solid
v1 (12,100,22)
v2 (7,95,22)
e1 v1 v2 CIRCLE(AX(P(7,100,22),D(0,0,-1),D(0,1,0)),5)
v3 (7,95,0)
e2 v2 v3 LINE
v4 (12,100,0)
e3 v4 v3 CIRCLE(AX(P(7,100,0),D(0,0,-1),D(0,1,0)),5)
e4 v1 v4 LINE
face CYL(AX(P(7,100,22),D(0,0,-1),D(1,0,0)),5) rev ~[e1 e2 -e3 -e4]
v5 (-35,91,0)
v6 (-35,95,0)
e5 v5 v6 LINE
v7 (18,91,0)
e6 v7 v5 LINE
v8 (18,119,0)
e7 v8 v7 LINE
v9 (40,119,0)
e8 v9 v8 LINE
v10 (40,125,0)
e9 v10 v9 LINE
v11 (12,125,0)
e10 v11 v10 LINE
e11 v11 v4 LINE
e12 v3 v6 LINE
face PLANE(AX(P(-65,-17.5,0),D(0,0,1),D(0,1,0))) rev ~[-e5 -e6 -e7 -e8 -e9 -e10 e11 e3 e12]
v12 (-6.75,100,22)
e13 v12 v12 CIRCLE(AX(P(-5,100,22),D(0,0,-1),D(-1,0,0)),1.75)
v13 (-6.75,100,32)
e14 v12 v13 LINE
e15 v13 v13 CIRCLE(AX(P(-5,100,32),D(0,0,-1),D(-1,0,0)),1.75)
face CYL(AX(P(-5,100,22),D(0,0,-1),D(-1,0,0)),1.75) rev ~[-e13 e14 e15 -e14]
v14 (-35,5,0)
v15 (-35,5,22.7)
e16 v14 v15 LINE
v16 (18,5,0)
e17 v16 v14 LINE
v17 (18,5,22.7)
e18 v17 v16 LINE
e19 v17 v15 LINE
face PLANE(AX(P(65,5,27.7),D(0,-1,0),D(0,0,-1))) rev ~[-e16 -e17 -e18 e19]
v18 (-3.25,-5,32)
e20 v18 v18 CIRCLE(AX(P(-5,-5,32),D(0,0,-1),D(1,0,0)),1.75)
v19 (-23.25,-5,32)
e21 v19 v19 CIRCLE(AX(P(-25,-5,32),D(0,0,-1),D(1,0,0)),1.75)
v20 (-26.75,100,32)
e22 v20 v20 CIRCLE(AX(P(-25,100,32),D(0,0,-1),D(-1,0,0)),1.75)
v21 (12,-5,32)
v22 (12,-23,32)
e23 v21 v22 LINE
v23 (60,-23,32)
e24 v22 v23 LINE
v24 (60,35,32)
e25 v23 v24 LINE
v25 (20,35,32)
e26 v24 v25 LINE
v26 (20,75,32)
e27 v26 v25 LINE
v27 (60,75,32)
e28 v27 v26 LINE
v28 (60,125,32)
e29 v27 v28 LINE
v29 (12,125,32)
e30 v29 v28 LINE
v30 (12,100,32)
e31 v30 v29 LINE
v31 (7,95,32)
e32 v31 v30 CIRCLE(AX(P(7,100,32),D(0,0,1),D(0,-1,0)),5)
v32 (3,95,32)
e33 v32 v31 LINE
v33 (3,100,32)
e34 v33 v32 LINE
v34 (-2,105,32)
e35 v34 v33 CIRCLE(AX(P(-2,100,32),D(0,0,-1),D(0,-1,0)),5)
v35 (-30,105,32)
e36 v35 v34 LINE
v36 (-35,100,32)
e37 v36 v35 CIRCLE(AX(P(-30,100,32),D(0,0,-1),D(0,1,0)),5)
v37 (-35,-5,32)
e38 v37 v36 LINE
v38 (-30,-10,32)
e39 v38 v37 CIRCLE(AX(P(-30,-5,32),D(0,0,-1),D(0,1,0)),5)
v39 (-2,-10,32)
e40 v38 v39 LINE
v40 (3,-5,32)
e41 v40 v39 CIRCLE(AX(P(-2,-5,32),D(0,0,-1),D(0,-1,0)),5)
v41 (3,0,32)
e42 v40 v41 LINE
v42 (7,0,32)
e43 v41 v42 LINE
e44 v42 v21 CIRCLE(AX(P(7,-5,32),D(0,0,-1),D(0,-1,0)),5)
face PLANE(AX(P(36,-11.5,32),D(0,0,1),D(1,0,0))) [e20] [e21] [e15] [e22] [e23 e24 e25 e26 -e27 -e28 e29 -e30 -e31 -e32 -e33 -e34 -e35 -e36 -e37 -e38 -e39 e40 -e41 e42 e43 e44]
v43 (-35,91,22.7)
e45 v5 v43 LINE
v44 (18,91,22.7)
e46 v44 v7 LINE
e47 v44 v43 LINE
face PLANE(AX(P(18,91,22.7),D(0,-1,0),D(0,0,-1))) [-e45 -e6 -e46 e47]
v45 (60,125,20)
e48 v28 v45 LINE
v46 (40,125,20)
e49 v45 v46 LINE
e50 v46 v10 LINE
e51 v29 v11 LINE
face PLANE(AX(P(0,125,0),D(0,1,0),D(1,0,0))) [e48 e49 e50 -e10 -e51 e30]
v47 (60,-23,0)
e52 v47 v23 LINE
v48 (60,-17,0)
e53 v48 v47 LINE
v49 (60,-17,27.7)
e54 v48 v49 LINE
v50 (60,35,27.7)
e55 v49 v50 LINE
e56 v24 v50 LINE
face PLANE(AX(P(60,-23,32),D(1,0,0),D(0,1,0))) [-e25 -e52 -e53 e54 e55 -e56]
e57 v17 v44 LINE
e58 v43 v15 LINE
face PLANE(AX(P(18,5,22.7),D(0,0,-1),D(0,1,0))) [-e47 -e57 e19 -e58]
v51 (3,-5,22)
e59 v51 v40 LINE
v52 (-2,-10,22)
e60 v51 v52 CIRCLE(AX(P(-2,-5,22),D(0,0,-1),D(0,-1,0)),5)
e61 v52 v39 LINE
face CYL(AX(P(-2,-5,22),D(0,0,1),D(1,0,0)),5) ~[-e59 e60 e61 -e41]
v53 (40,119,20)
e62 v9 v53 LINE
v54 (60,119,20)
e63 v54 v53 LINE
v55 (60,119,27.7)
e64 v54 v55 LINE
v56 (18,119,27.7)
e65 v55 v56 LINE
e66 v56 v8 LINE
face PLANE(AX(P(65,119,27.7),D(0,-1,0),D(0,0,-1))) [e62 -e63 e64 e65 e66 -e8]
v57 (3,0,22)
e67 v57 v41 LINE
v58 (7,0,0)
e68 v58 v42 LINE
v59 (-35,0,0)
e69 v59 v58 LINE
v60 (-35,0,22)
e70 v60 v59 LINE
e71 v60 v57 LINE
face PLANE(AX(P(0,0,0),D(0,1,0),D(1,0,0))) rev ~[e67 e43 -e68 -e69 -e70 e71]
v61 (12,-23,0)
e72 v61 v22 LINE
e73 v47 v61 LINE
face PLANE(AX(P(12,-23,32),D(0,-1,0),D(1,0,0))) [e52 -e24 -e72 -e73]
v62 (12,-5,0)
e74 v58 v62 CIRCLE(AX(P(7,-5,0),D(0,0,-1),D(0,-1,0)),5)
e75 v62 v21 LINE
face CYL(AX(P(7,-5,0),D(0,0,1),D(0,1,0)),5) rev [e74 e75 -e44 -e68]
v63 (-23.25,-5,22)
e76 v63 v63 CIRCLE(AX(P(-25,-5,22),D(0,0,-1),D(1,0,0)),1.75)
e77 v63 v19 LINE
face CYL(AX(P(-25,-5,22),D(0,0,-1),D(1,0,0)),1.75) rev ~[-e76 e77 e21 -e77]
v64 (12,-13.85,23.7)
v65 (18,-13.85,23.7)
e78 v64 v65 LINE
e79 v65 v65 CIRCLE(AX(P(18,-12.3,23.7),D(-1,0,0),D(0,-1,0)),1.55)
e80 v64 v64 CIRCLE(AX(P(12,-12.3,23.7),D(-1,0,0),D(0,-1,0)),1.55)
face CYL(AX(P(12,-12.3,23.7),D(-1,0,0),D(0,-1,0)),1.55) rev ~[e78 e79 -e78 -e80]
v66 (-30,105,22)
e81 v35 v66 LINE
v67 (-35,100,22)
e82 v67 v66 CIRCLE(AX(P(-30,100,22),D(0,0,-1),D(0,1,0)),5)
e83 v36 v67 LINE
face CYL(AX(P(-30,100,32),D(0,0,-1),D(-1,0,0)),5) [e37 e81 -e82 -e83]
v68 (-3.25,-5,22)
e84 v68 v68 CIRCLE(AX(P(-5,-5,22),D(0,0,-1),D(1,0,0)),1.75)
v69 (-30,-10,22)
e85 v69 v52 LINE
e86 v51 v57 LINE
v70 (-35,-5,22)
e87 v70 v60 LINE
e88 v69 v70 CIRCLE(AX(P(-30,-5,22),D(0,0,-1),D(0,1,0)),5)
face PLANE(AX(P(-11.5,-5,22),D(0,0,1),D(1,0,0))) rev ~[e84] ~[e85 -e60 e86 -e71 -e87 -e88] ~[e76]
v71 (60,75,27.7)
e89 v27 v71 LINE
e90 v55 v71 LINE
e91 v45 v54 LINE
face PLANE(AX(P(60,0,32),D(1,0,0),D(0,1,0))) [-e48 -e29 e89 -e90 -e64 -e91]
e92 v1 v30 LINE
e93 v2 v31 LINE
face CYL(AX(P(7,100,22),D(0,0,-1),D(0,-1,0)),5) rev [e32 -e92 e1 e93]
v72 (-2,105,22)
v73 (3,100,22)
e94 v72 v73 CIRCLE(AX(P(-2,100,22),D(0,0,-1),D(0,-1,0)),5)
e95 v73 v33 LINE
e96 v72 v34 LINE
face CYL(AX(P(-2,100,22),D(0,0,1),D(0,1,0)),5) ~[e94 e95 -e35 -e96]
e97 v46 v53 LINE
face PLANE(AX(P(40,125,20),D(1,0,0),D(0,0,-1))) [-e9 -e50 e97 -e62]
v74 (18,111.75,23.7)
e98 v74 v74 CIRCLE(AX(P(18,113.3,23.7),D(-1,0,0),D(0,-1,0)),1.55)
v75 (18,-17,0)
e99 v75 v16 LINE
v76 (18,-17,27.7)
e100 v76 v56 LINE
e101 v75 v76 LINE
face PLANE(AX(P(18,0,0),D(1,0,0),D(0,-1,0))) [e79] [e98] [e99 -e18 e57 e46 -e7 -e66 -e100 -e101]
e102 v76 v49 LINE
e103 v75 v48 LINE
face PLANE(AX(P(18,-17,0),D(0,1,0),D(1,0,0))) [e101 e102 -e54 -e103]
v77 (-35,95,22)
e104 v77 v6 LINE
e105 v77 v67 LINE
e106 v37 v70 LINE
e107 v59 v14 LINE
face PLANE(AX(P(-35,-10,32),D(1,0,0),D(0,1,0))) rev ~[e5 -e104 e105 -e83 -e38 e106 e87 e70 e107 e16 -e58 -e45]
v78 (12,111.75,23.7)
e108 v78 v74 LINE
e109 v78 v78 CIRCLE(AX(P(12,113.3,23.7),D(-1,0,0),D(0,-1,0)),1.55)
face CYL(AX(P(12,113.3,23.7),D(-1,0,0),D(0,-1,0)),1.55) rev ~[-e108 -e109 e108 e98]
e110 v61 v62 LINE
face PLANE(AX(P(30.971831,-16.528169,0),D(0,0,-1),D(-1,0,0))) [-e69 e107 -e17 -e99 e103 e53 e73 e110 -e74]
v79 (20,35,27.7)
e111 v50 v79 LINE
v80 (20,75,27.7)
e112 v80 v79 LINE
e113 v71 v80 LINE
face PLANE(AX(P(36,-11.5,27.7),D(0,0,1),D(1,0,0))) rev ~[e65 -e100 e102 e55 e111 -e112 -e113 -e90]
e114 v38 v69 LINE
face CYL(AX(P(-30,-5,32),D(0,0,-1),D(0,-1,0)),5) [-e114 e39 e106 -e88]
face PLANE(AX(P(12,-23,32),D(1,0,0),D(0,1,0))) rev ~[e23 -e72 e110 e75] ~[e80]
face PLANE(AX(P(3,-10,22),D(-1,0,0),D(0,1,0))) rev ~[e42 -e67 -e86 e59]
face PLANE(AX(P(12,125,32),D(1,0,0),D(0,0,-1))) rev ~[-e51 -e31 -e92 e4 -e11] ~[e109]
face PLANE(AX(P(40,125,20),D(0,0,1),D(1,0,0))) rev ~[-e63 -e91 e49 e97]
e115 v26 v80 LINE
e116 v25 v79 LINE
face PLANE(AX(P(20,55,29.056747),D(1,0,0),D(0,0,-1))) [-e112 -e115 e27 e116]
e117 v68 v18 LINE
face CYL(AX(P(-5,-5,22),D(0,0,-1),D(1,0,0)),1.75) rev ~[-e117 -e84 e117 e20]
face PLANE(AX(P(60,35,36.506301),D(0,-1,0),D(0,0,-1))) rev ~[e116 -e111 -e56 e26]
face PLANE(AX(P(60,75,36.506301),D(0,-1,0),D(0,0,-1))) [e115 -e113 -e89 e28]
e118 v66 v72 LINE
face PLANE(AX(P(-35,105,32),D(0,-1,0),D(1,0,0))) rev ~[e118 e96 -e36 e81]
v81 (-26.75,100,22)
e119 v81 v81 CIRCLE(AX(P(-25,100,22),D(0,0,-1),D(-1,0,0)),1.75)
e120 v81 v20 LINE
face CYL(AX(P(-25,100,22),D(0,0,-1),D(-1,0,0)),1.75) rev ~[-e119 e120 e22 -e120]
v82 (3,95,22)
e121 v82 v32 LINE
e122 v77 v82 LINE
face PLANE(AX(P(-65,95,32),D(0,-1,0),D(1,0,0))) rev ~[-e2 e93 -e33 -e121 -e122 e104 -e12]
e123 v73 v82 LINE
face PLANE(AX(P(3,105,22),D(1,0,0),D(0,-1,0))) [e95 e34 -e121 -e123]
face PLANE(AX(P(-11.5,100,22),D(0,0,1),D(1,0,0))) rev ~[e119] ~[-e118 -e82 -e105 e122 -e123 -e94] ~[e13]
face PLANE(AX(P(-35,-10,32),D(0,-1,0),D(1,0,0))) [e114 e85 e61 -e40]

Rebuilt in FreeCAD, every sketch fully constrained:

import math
import FreeCAD as App
import Part
import Sketcher
from FreeCAD import Vector
Q = App.Units.Quantity


def edges_at(feature, points):
    """Names of the edges that pass closest to the given points."""
    edges = feature.Shape.Edges
    near = lambda p: min(range(len(edges)), key=lambda i: edges[i].distToShape(Part.Vertex(*p))[0])
    return sorted({f"Edge{near(p) + 1}" for p in points})

doc = App.newDocument("Part")
params = doc.addObject("Spreadsheet::Sheet", "Params")
for row, (alias, value) in enumerate([
    ("sketch1_width", "130 mm"),
    ("sketch1_height", "64 mm"),
    ("pad1_length", "125 mm"),
    ("sketch2_width", "114 mm"),
    ("sketch2_height", "55.4 mm"),
    ("pocket1_length", "47 mm"),
    ("sketch3_width", "86 mm"),
    ("sketch3_height", "45.4 mm"),
    ("pocket2_length", "78 mm"),
    ("sketch4_width", "40 mm"),
    ("pocket3_length", "40 mm"),
    ("sketch5_width", "25 mm"),
    ("sketch5_height", "4.3 mm"),
    ("pocket4_length", "25 mm"),
    ("sketch6_width", "10 mm"),
    ("sketch6_height", "40 mm"),
    ("pocket5_length", "35 mm"),
    ("sketch7_width", "5 mm"),
    ("sketch7_height", "125 mm"),
    ("sketch8_width", "20 mm"),
    ("sketch8_height", "150 mm"),
    ("pad2_length", "5 mm"),
    ("sketch9_diameter", "5 mm"),
    ("fillet_radius", "3 mm"),
    ("sketch10_width", "32 mm"),
    ("sketch10_height", "30 mm"),
    ("sketch11_width", "45 mm"),
    ("sketch11_height", "50 mm"),
    ("pocket9_length", "30 mm"),
    ("fillet2_radius", "5 mm"),
    ("sketch12_width", "150 mm"),
    ("sketch12_height", "32 mm"),
    ("sketch13_width", "40 mm"),
    ("pocket11_length", "40 mm"),
    ("sketch14_width", "30 mm"),
    ("sketch14_height", "95 mm"),
    ("sketch15_width", "6 mm"),
    ("sketch15_height", "20 mm"),
    ("sketch16_width", "47 mm"),
    ("sketch16_height", "10 mm"),
    ("pad3_length", "10 mm"),
    ("sketch17_diameter", "3.5 mm"),
    ("sketch18_width", "42 mm"),
    ("sketch18_height", "27.7 mm"),
    ("sketch19_width", "42 mm"),
    ("sketch19_width2", "48 mm"),
    ("sketch19_height", "17 mm"),
    ("pad4_length", "27.7 mm"),
    ("sketch20_width", "48 mm"),
    ("sketch20_height", "23 mm"),
    ("pad5_length", "4.3 mm"),
    ("fillet3_radius", "5 mm"),
    ("fillet4_radius", "5 mm"),
    ("sketch21_radius", "5 mm"),
    ("sketch21_width", "4 mm"),
    ("sketch21_height", "10 mm"),
    ("pocket16_length", "10 mm"),
    ("sketch22_diameter", "3.1 mm"),
    ("fillet5_radius", "5 mm"),
    ("fillet6_radius", "5 mm"),
    ("fillet7_radius", "5 mm"),
], start=1):
    params.set(f"A{row}", alias)
    params.set(f"B{row}", "=" + value)
    params.setAlias(f"B{row}", alias)

body = doc.addObject("PartDesign::Body", "Body")

# Sketch on XZ plane
sketch1 = body.newObject("Sketcher::SketchObject", "Sketch")
sketch1.AttachmentSupport = (doc.getObject("XZ_Plane"), [""])
sketch1.MapMode = "FlatFace"
sketch1.addGeometry([
    Part.LineSegment(Vector(-65, -32, 0), Vector(-65, 32, 0)),
    Part.LineSegment(Vector(-65, 32, 0), Vector(65, 32, 0)),
    Part.LineSegment(Vector(65, 32, 0), Vector(65, -32, 0)),
    Part.LineSegment(Vector(65, -32, 0), Vector(-65, -32, 0)),
], False)
sketch1.addConstraint([
    Sketcher.Constraint("Coincident", 0, 2, 1, 1),
    Sketcher.Constraint("Coincident", 1, 2, 2, 1),
    Sketcher.Constraint("Coincident", 2, 2, 3, 1),
    Sketcher.Constraint("Coincident", 3, 2, 0, 1),
    Sketcher.Constraint("Vertical", 0),
    Sketcher.Constraint("Horizontal", 1),
    Sketcher.Constraint("Vertical", 2),
    Sketcher.Constraint("Horizontal", 3),
    Sketcher.Constraint("Symmetric", 0, 2, 2, 2, -1, 1),
    Sketcher.Constraint("DistanceX", 1, 1, 1, 2, Q("130 mm")),
    Sketcher.Constraint("DistanceY", 0, 1, 0, 2, Q("64 mm")),
])
sketch1.setExpression("Constraints[9]", "Params.sketch1_width")
sketch1.setExpression("Constraints[10]", "Params.sketch1_height")
pad1 = body.newObject("PartDesign::Pad", "Pad")
pad1.Profile = sketch1
pad1.setExpression("Length", "Params.pad1_length")
pad1.Reversed = True

# Sketch on YZ plane
sketch2 = body.newObject("Sketcher::SketchObject", "Sketch001")
sketch2.AttachmentSupport = (doc.getObject("YZ_Plane"), [""])
sketch2.MapMode = "FlatFace"
sketch2.AttachmentOffset = App.Placement(Vector(0, 0, 65), App.Rotation())
sketch2.addGeometry([
    Part.LineSegment(Vector(119, 27.7, 0), Vector(5, 27.7, 0)),
    Part.LineSegment(Vector(5, 27.7, 0), Vector(5, -27.7, 0)),
    Part.LineSegment(Vector(5, -27.7, 0), Vector(119, -27.7, 0)),
    Part.LineSegment(Vector(119, -27.7, 0), Vector(119, 27.7, 0)),
], False)
sketch2.addConstraint([
    Sketcher.Constraint("Coincident", 0, 2, 1, 1),
    Sketcher.Constraint("Coincident", 1, 2, 2, 1),
    Sketcher.Constraint("Coincident", 2, 2, 3, 1),
    Sketcher.Constraint("Coincident", 3, 2, 0, 1),
    Sketcher.Constraint("Horizontal", 0),
    Sketcher.Constraint("Vertical", 1),
    Sketcher.Constraint("Horizontal", 2),
    Sketcher.Constraint("Vertical", 3),
    Sketcher.Constraint("DistanceX", 0, 2, 0, 1, Q("114 mm")),
    Sketcher.Constraint("DistanceY", 1, 2, 1, 1, Q("55.4 mm")),
    Sketcher.Constraint("DistanceX", -1, 1, 0, 2, Q("5 mm")),
    Sketcher.Constraint("DistanceY", -1, 1, 0, 2, Q("27.7 mm")),
])
sketch2.setExpression("Constraints[8]", "Params.sketch2_width")
sketch2.setExpression("Constraints[9]", "Params.sketch2_height")
pocket1 = body.newObject("PartDesign::Pocket", "Pocket")
pocket1.Profile = sketch2
pocket1.setExpression("Length", "Params.pocket1_length")

# Sketch on YZ plane
sketch3 = body.newObject("Sketcher::SketchObject", "Sketch002")
sketch3.AttachmentSupport = (doc.getObject("YZ_Plane"), [""])
sketch3.MapMode = "FlatFace"
sketch3.AttachmentOffset = App.Placement(Vector(0, 0, 18), App.Rotation())
sketch3.addGeometry([
    Part.LineSegment(Vector(91, 22.7, 0), Vector(5, 22.7, 0)),
    Part.LineSegment(Vector(5, 22.7, 0), Vector(5, -22.7, 0)),
    Part.LineSegment(Vector(5, -22.7, 0), Vector(91, -22.7, 0)),
    Part.LineSegment(Vector(91, -22.7, 0), Vector(91, 22.7, 0)),
], False)
sketch3.addConstraint([
    Sketcher.Constraint("Coincident", 0, 2, 1, 1),
    Sketcher.Constraint("Coincident", 1, 2, 2, 1),
    Sketcher.Constraint("Coincident", 2, 2, 3, 1),
    Sketcher.Constraint("Coincident", 3, 2, 0, 1),
    Sketcher.Constraint("Horizontal", 0),
    Sketcher.Constraint("Vertical", 1),
    Sketcher.Constraint("Horizontal", 2),
    Sketcher.Constraint("Vertical", 3),
    Sketcher.Constraint("DistanceX", 0, 2, 0, 1, Q("86 mm")),
    Sketcher.Constraint("DistanceY", 1, 2, 1, 1, Q("45.4 mm")),
    Sketcher.Constraint("DistanceX", -1, 1, 0, 2, Q("5 mm")),
    Sketcher.Constraint("DistanceY", -1, 1, 0, 2, Q("22.7 mm")),
])
sketch3.setExpression("Constraints[8]", "Params.sketch3_width")
sketch3.setExpression("Constraints[9]", "Params.sketch3_height")
pocket2 = body.newObject("PartDesign::Pocket", "Pocket001")
pocket2.Profile = sketch3
pocket2.setExpression("Length", "Params.pocket2_length")

# Sketch on YZ plane
sketch4 = body.newObject("Sketcher::SketchObject", "Sketch003")
sketch4.AttachmentSupport = (doc.getObject("YZ_Plane"), [""])
sketch4.MapMode = "FlatFace"
sketch4.AttachmentOffset = App.Placement(Vector(0, 0, 65), App.Rotation())
sketch4.addGeometry([
    Part.LineSegment(Vector(75, -14.549865, 0), Vector(35, -14.549865, 0)),
    Part.LineSegment(Vector(35, -14.549865, 0), Vector(35, -38.588773, 0)),
    Part.LineSegment(Vector(35, -38.588773, 0), Vector(75, -38.588773, 0)),
    Part.LineSegment(Vector(75, -38.588773, 0), Vector(75, -14.549865, 0)),
], False)
sketch4.addConstraint([
    Sketcher.Constraint("Coincident", 0, 2, 1, 1),
    Sketcher.Constraint("Coincident", 1, 2, 2, 1),
    Sketcher.Constraint("Coincident", 2, 2, 3, 1),
    Sketcher.Constraint("Coincident", 3, 2, 0, 1),
    Sketcher.Constraint("Horizontal", 0),
    Sketcher.Constraint("Vertical", 1),
    Sketcher.Constraint("Horizontal", 2),
    Sketcher.Constraint("Vertical", 3),
    Sketcher.Constraint("DistanceX", 0, 2, 0, 1, Q("40 mm")),
    Sketcher.Constraint("DistanceX", -1, 1, 0, 2, Q("35 mm")),
    Sketcher.Constraint("DistanceY", 1, 2, 1, 1, Q("24.038908 mm")),
    Sketcher.Constraint("DistanceY", 0, 2, -1, 1, Q("14.549865 mm")),
])
sketch4.setExpression("Constraints[8]", "Params.sketch4_width")
pocket3 = body.newObject("PartDesign::Pocket", "Pocket002")
pocket3.Profile = sketch4
pocket3.setExpression("Length", "Params.pocket3_length")

# Sketch on YZ plane
sketch5 = body.newObject("Sketcher::SketchObject", "Sketch004")
sketch5.AttachmentSupport = (doc.getObject("YZ_Plane"), [""])
sketch5.MapMode = "FlatFace"
sketch5.AttachmentOffset = App.Placement(Vector(0, 0, 65), App.Rotation())
sketch5.addGeometry([
    Part.LineSegment(Vector(100, -27.7, 0), Vector(75, -27.7, 0)),
    Part.LineSegment(Vector(75, -27.7, 0), Vector(75, -32, 0)),
    Part.LineSegment(Vector(75, -32, 0), Vector(100, -32, 0)),
    Part.LineSegment(Vector(100, -32, 0), Vector(100, -27.7, 0)),
], False)
sketch5.addConstraint([
    Sketcher.Constraint("Coincident", 0, 2, 1, 1),
    Sketcher.Constraint("Coincident", 1, 2, 2, 1),
    Sketcher.Constraint("Coincident", 2, 2, 3, 1),
    Sketcher.Constraint("Coincident", 3, 2, 0, 1),
    Sketcher.Constraint("Horizontal", 0),
    Sketcher.Constraint("Vertical", 1),
    Sketcher.Constraint("Horizontal", 2),
    Sketcher.Constraint("Vertical", 3),
    Sketcher.Constraint("DistanceX", 0, 2, 0, 1, Q("25 mm")),
    Sketcher.Constraint("DistanceY", 1, 2, 1, 1, Q("4.3 mm")),
    Sketcher.Constraint("DistanceX", -1, 1, 0, 2, Q("75 mm")),
    Sketcher.Constraint("DistanceY", 1, 2, -1, 1, Q("32 mm")),
])
sketch5.setExpression("Constraints[8]", "Params.sketch5_width")
sketch5.setExpression("Constraints[9]", "Params.sketch5_height")
pocket4 = body.newObject("PartDesign::Pocket", "Pocket003")
pocket4.Profile = sketch5
pocket4.setExpression("Length", "Params.pocket4_length")

# Sketch on XZ plane
sketch6 = body.newObject("Sketcher::SketchObject", "Sketch005")
sketch6.AttachmentSupport = (doc.getObject("XZ_Plane"), [""])
sketch6.MapMode = "FlatFace"
sketch6.AttachmentOffset = App.Placement(Vector(0, 0, -125), App.Rotation())
sketch6.addGeometry([
    Part.LineSegment(Vector(40, -20, 0), Vector(40, 20, 0)),
    Part.LineSegment(Vector(40, 20, 0), Vector(50, 20, 0)),
    Part.LineSegment(Vector(50, 20, 0), Vector(50, -20, 0)),
    Part.LineSegment(Vector(50, -20, 0), Vector(40, -20, 0)),
], False)
sketch6.addConstraint([
    Sketcher.Constraint("Coincident", 0, 2, 1, 1),
    Sketcher.Constraint("Coincident", 1, 2, 2, 1),
    Sketcher.Constraint("Coincident", 2, 2, 3, 1),
    Sketcher.Constraint("Coincident", 3, 2, 0, 1),
    Sketcher.Constraint("Vertical", 0),
    Sketcher.Constraint("Horizontal", 1),
    Sketcher.Constraint("Vertical", 2),
    Sketcher.Constraint("Horizontal", 3),
    Sketcher.Constraint("DistanceX", 1, 1, 1, 2, Q("10 mm")),
    Sketcher.Constraint("DistanceY", 0, 1, 0, 2, Q("40 mm")),
    Sketcher.Constraint("DistanceX", -1, 1, 0, 2, Q("40 mm")),
    Sketcher.Constraint("DistanceY", -1, 1, 0, 2, Q("20 mm")),
])
sketch6.setExpression("Constraints[8]", "Params.sketch6_width")
sketch6.setExpression("Constraints[9]", "Params.sketch6_height")
pocket5 = body.newObject("PartDesign::Pocket", "Pocket004")
pocket5.Profile = sketch6
pocket5.setExpression("Length", "Params.pocket5_length")
pocket5.Reversed = True

# Sketch on XY plane
sketch7 = body.newObject("Sketcher::SketchObject", "Sketch006")
sketch7.AttachmentSupport = (doc.getObject("XY_Plane"), [""])
sketch7.MapMode = "FlatFace"
sketch7.AttachmentOffset = App.Placement(Vector(0, 0, 32), App.Rotation())
sketch7.addGeometry([
    Part.LineSegment(Vector(60, 125, 0), Vector(60, 0, 0)),
    Part.LineSegment(Vector(60, 0, 0), Vector(65, 0, 0)),
    Part.LineSegment(Vector(65, 0, 0), Vector(65, 125, 0)),
    Part.LineSegment(Vector(65, 125, 0), Vector(60, 125, 0)),
], False)
sketch7.addConstraint([
    Sketcher.Constraint("Coincident", 0, 2, 1, 1),
    Sketcher.Constraint("Coincident", 1, 2, 2, 1),
    Sketcher.Constraint("Coincident", 2, 2, 3, 1),
    Sketcher.Constraint("Coincident", 3, 2, 0, 1),
    Sketcher.Constraint("Vertical", 0),
    Sketcher.Constraint("Horizontal", 1),
    Sketcher.Constraint("Vertical", 2),
    Sketcher.Constraint("Horizontal", 3),
    Sketcher.Constraint("PointOnObject", 0, 2, -1),
    Sketcher.Constraint("DistanceX", 1, 1, 1, 2, Q("5 mm")),
    Sketcher.Constraint("DistanceY", 0, 2, 0, 1, Q("125 mm")),
    Sketcher.Constraint("DistanceX", -1, 1, 0, 2, Q("60 mm")),
])
sketch7.setExpression("Constraints[9]", "Params.sketch7_width")
sketch7.setExpression("Constraints[10]", "Params.sketch7_height")
pocket6 = body.newObject("PartDesign::Pocket", "Pocket005")
pocket6.Profile = sketch7
pocket6.Type = "ThroughAll"

# Sketch on XY plane
sketch8 = body.newObject("Sketcher::SketchObject", "Sketch007")
sketch8.AttachmentSupport = (doc.getObject("XY_Plane"), [""])
sketch8.MapMode = "FlatFace"
sketch8.AttachmentOffset = App.Placement(Vector(0, 0, -32), App.Rotation())
sketch8.addGeometry([
    Part.LineSegment(Vector(-5, 132.5, 0), Vector(-5, -17.5, 0)),
    Part.LineSegment(Vector(-5, -17.5, 0), Vector(-25, -17.5, 0)),
    Part.LineSegment(Vector(-25, -17.5, 0), Vector(-25, 132.5, 0)),
    Part.LineSegment(Vector(-25, 132.5, 0), Vector(-5, 132.5, 0)),
], False)
sketch8.addConstraint([
    Sketcher.Constraint("Coincident", 0, 2, 1, 1),
    Sketcher.Constraint("Coincident", 1, 2, 2, 1),
    Sketcher.Constraint("Coincident", 2, 2, 3, 1),
    Sketcher.Constraint("Coincident", 3, 2, 0, 1),
    Sketcher.Constraint("Vertical", 0),
    Sketcher.Constraint("Horizontal", 1),
    Sketcher.Constraint("Vertical", 2),
    Sketcher.Constraint("Horizontal", 3),
    Sketcher.Constraint("DistanceX", 1, 2, 1, 1, Q("20 mm")),
    Sketcher.Constraint("DistanceY", 0, 2, 0, 1, Q("150 mm")),
    Sketcher.Constraint("DistanceX", 0, 2, -1, 1, Q("5 mm")),
    Sketcher.Constraint("DistanceY", 0, 2, -1, 1, Q("17.5 mm")),
])
sketch8.setExpression("Constraints[8]", "Params.sketch8_width")
sketch8.setExpression("Constraints[9]", "Params.sketch8_height")
pad2 = body.newObject("PartDesign::Pad", "Pad001")
pad2.Profile = sketch8
pad2.setExpression("Length", "Params.pad2_length")

# Sketch on XY plane
sketch9 = body.newObject("Sketcher::SketchObject", "Sketch008")
sketch9.AttachmentSupport = (doc.getObject("XY_Plane"), [""])
sketch9.MapMode = "FlatFace"
sketch9.AttachmentOffset = App.Placement(Vector(0, 0, -27), App.Rotation())
sketch9.addGeometry([
    Part.Circle(Vector(-15, -12, 0), Vector(0, 0, 1), 2.5),
    Part.Circle(Vector(-15, 137, 0), Vector(0, 0, 1), 2.5),
], False)
sketch9.addConstraint([
    Sketcher.Constraint("Equal", 0, 1),
    Sketcher.Constraint("Vertical", 0, 3, 1, 3),
    Sketcher.Constraint("Diameter", 0, Q("5 mm")),
    Sketcher.Constraint("DistanceX", 0, 3, -1, 1, Q("15 mm")),
    Sketcher.Constraint("DistanceY", 0, 3, -1, 1, Q("12 mm")),
    Sketcher.Constraint("DistanceY", -1, 1, 1, 3, Q("137 mm")),
])
sketch9.setExpression("Constraints[2]", "Params.sketch9_diameter")
pocket7 = body.newObject("PartDesign::Pocket", "Pocket006")
pocket7.Profile = sketch9
pocket7.Type = "ThroughAll"
doc.recompute()

fillet = body.newObject("PartDesign::Fillet", "Fillet")
fillet.Base = (pocket7, edges_at(pocket7, [
    (-15, 0, -27),
    (-5, 0, -29.5),
    (-25, 0, -29.5),
    (-25, 132.5, -29.5),
    (-25, 125, -29.5),
    (-5, 125, -29.5),
    (-15, 125, -27),
    (-25, -17.5, -29.5),
    (-5, -17.5, -29.5),
    (-5, 132.5, -29.5),
]))
fillet.setExpression("Radius", "Params.fillet_radius")

# Sketch on XY plane
sketch10 = body.newObject("Sketcher::SketchObject", "Sketch009")
sketch10.AttachmentSupport = (doc.getObject("XY_Plane"), [""])
sketch10.MapMode = "FlatFace"
sketch10.AttachmentOffset = App.Placement(Vector(0, 0, 32), App.Rotation())
sketch10.addGeometry([
    Part.LineSegment(Vector(-65, 125, 0), Vector(-65, 95, 0)),
    Part.LineSegment(Vector(-65, 95, 0), Vector(-33, 95, 0)),
    Part.LineSegment(Vector(-33, 95, 0), Vector(-33, 125, 0)),
    Part.LineSegment(Vector(-33, 125, 0), Vector(-65, 125, 0)),
], False)
sketch10.addConstraint([
    Sketcher.Constraint("Coincident", 0, 2, 1, 1),
    Sketcher.Constraint("Coincident", 1, 2, 2, 1),
    Sketcher.Constraint("Coincident", 2, 2, 3, 1),
    Sketcher.Constraint("Coincident", 3, 2, 0, 1),
    Sketcher.Constraint("Vertical", 0),
    Sketcher.Constraint("Horizontal", 1),
    Sketcher.Constraint("Vertical", 2),
    Sketcher.Constraint("Horizontal", 3),
    Sketcher.Constraint("DistanceX", 1, 1, 1, 2, Q("32 mm")),
    Sketcher.Constraint("DistanceY", 0, 2, 0, 1, Q("30 mm")),
    Sketcher.Constraint("DistanceX", 0, 2, -1, 1, Q("65 mm")),
    Sketcher.Constraint("DistanceY", -1, 1, 0, 2, Q("95 mm")),
])
sketch10.setExpression("Constraints[8]", "Params.sketch10_width")
sketch10.setExpression("Constraints[9]", "Params.sketch10_height")
pocket8 = body.newObject("PartDesign::Pocket", "Pocket007")
pocket8.Profile = sketch10
pocket8.Type = "ThroughAll"

# Sketch on XZ plane
sketch11 = body.newObject("Sketcher::SketchObject", "Sketch010")
sketch11.AttachmentSupport = (doc.getObject("XZ_Plane"), [""])
sketch11.MapMode = "FlatFace"
sketch11.AttachmentOffset = App.Placement(Vector(0, 0, -125), App.Rotation())
sketch11.addGeometry([
    Part.LineSegment(Vector(-33, -18, 0), Vector(-33, 32, 0)),
    Part.LineSegment(Vector(-33, 32, 0), Vector(12, 32, 0)),
    Part.LineSegment(Vector(12, 32, 0), Vector(12, -18, 0)),
    Part.LineSegment(Vector(12, -18, 0), Vector(-33, -18, 0)),
], False)
sketch11.addConstraint([
    Sketcher.Constraint("Coincident", 0, 2, 1, 1),
    Sketcher.Constraint("Coincident", 1, 2, 2, 1),
    Sketcher.Constraint("Coincident", 2, 2, 3, 1),
    Sketcher.Constraint("Coincident", 3, 2, 0, 1),
    Sketcher.Constraint("Vertical", 0),
    Sketcher.Constraint("Horizontal", 1),
    Sketcher.Constraint("Vertical", 2),
    Sketcher.Constraint("Horizontal", 3),
    Sketcher.Constraint("DistanceX", 1, 1, 1, 2, Q("45 mm")),
    Sketcher.Constraint("DistanceY", 0, 1, 0, 2, Q("50 mm")),
    Sketcher.Constraint("DistanceX", 0, 2, -1, 1, Q("33 mm")),
    Sketcher.Constraint("DistanceY", -1, 1, 0, 2, Q("32 mm")),
])
sketch11.setExpression("Constraints[8]", "Params.sketch11_width")
sketch11.setExpression("Constraints[9]", "Params.sketch11_height")
pocket9 = body.newObject("PartDesign::Pocket", "Pocket008")
pocket9.Profile = sketch11
pocket9.setExpression("Length", "Params.pocket9_length")
pocket9.Reversed = True
doc.recompute()

fillet2 = body.newObject("PartDesign::Fillet", "Fillet001")
fillet2.Base = (pocket9, edges_at(pocket9, [(-33, 110, -18), (12, 110, -18)]))
fillet2.setExpression("Radius", "Params.fillet2_radius")

# Sketch on YZ plane
sketch12 = body.newObject("Sketcher::SketchObject", "Sketch011")
sketch12.AttachmentSupport = (doc.getObject("YZ_Plane"), [""])
sketch12.MapMode = "FlatFace"
sketch12.AttachmentOffset = App.Placement(Vector(0, 0, -65), App.Rotation())
sketch12.addGeometry([
    Part.LineSegment(Vector(132.5, -32, 0), Vector(-17.5, -32, 0)),
    Part.LineSegment(Vector(-17.5, -32, 0), Vector(-17.5, 0, 0)),
    Part.LineSegment(Vector(-17.5, 0, 0), Vector(132.5, 0, 0)),
    Part.LineSegment(Vector(132.5, 0, 0), Vector(132.5, -32, 0)),
], False)
sketch12.addConstraint([
    Sketcher.Constraint("Coincident", 0, 2, 1, 1),
    Sketcher.Constraint("Coincident", 1, 2, 2, 1),
    Sketcher.Constraint("Coincident", 2, 2, 3, 1),
    Sketcher.Constraint("Coincident", 3, 2, 0, 1),
    Sketcher.Constraint("Horizontal", 0),
    Sketcher.Constraint("Vertical", 1),
    Sketcher.Constraint("Horizontal", 2),
    Sketcher.Constraint("Vertical", 3),
    Sketcher.Constraint("PointOnObject", 1, 2, -1),
    Sketcher.Constraint("DistanceX", 0, 2, 0, 1, Q("150 mm")),
    Sketcher.Constraint("DistanceY", 1, 1, 1, 2, Q("32 mm")),
    Sketcher.Constraint("DistanceX", 0, 2, -1, 1, Q("17.5 mm")),
])
sketch12.setExpression("Constraints[9]", "Params.sketch12_width")
sketch12.setExpression("Constraints[10]", "Params.sketch12_height")
pocket10 = body.newObject("PartDesign::Pocket", "Pocket009")
pocket10.Profile = sketch12
pocket10.Type = "ThroughAll"
pocket10.Reversed = True

# Sketch on YZ plane
sketch13 = body.newObject("Sketcher::SketchObject", "Sketch012")
sketch13.AttachmentSupport = (doc.getObject("YZ_Plane"), [""])
sketch13.MapMode = "FlatFace"
sketch13.AttachmentOffset = App.Placement(Vector(0, 0, 60), App.Rotation())
sketch13.addGeometry([
    Part.LineSegment(Vector(75, 36.506301, 0), Vector(35, 36.506301, 0)),
    Part.LineSegment(Vector(35, 36.506301, 0), Vector(35, 21.607192, 0)),
    Part.LineSegment(Vector(35, 21.607192, 0), Vector(75, 21.607192, 0)),
    Part.LineSegment(Vector(75, 21.607192, 0), Vector(75, 36.506301, 0)),
], False)
sketch13.addConstraint([
    Sketcher.Constraint("Coincident", 0, 2, 1, 1),
    Sketcher.Constraint("Coincident", 1, 2, 2, 1),
    Sketcher.Constraint("Coincident", 2, 2, 3, 1),
    Sketcher.Constraint("Coincident", 3, 2, 0, 1),
    Sketcher.Constraint("Horizontal", 0),
    Sketcher.Constraint("Vertical", 1),
    Sketcher.Constraint("Horizontal", 2),
    Sketcher.Constraint("Vertical", 3),
    Sketcher.Constraint("DistanceX", 0, 2, 0, 1, Q("40 mm")),
    Sketcher.Constraint("DistanceX", -1, 1, 0, 2, Q("35 mm")),
    Sketcher.Constraint("DistanceY", 1, 2, 1, 1, Q("14.89911 mm")),
    Sketcher.Constraint("DistanceY", -1, 1, 0, 2, Q("36.506301 mm")),
])
sketch13.setExpression("Constraints[8]", "Params.sketch13_width")
pocket11 = body.newObject("PartDesign::Pocket", "Pocket010")
pocket11.Profile = sketch13
pocket11.setExpression("Length", "Params.pocket11_length")

# Sketch on XY plane
sketch14 = body.newObject("Sketcher::SketchObject", "Sketch013")
sketch14.AttachmentSupport = (doc.getObject("XY_Plane"), [""])
sketch14.MapMode = "FlatFace"
sketch14.AttachmentOffset = App.Placement(Vector(0, 0, 22.7), App.Rotation())
sketch14.addGeometry([
    Part.LineSegment(Vector(-35, 95, 0), Vector(-35, 0, 0)),
    Part.LineSegment(Vector(-35, 0, 0), Vector(-65, 0, 0)),
    Part.LineSegment(Vector(-65, 0, 0), Vector(-65, 95, 0)),
    Part.LineSegment(Vector(-65, 95, 0), Vector(-35, 95, 0)),
], False)
sketch14.addConstraint([
    Sketcher.Constraint("Coincident", 0, 2, 1, 1),
    Sketcher.Constraint("Coincident", 1, 2, 2, 1),
    Sketcher.Constraint("Coincident", 2, 2, 3, 1),
    Sketcher.Constraint("Coincident", 3, 2, 0, 1),
    Sketcher.Constraint("Vertical", 0),
    Sketcher.Constraint("Horizontal", 1),
    Sketcher.Constraint("Vertical", 2),
    Sketcher.Constraint("Horizontal", 3),
    Sketcher.Constraint("PointOnObject", 0, 2, -1),
    Sketcher.Constraint("DistanceX", 1, 2, 1, 1, Q("30 mm")),
    Sketcher.Constraint("DistanceY", 0, 2, 0, 1, Q("95 mm")),
    Sketcher.Constraint("DistanceX", 0, 2, -1, 1, Q("35 mm")),
])
sketch14.setExpression("Constraints[9]", "Params.sketch14_width")
sketch14.setExpression("Constraints[10]", "Params.sketch14_height")
pocket12 = body.newObject("PartDesign::Pocket", "Pocket011")
pocket12.Profile = sketch14
pocket12.Type = "ThroughAll"
pocket12.Midplane = True

# Sketch on YZ plane
sketch15 = body.newObject("Sketcher::SketchObject", "Sketch014")
sketch15.AttachmentSupport = (doc.getObject("YZ_Plane"), [""])
sketch15.MapMode = "FlatFace"
sketch15.AttachmentOffset = App.Placement(Vector(0, 0, 40), App.Rotation())
sketch15.addGeometry([
    Part.LineSegment(Vector(125, 20, 0), Vector(119, 20, 0)),
    Part.LineSegment(Vector(119, 20, 0), Vector(119, 0, 0)),
    Part.LineSegment(Vector(119, 0, 0), Vector(125, 0, 0)),
    Part.LineSegment(Vector(125, 0, 0), Vector(125, 20, 0)),
], False)
sketch15.addConstraint([
    Sketcher.Constraint("Coincident", 0, 2, 1, 1),
    Sketcher.Constraint("Coincident", 1, 2, 2, 1),
    Sketcher.Constraint("Coincident", 2, 2, 3, 1),
    Sketcher.Constraint("Coincident", 3, 2, 0, 1),
    Sketcher.Constraint("Horizontal", 0),
    Sketcher.Constraint("Vertical", 1),
    Sketcher.Constraint("Horizontal", 2),
    Sketcher.Constraint("Vertical", 3),
    Sketcher.Constraint("PointOnObject", 1, 2, -1),
    Sketcher.Constraint("DistanceX", 0, 2, 0, 1, Q("6 mm")),
    Sketcher.Constraint("DistanceY", 1, 2, 1, 1, Q("20 mm")),
    Sketcher.Constraint("DistanceX", -1, 1, 0, 2, Q("119 mm")),
])
sketch15.setExpression("Constraints[9]", "Params.sketch15_width")
sketch15.setExpression("Constraints[10]", "Params.sketch15_height")
pocket13 = body.newObject("PartDesign::Pocket", "Pocket012")
pocket13.Profile = sketch15
pocket13.Type = "ThroughAll"
pocket13.Reversed = True

# Sketch on XY plane
sketch16 = body.newObject("Sketcher::SketchObject", "Sketch015")
sketch16.AttachmentSupport = (doc.getObject("XY_Plane"), [""])
sketch16.MapMode = "FlatFace"
sketch16.AttachmentOffset = App.Placement(Vector(0, 0, 32), App.Rotation())
sketch16.addGeometry([
    Part.LineSegment(Vector(-35, 0, 0), Vector(-35, -10, 0)),  # 0
    Part.LineSegment(Vector(-35, -10, 0), Vector(12, -10, 0)),  # 1
    Part.LineSegment(Vector(12, -10, 0), Vector(12, 0, 0)),  # 2
    Part.LineSegment(Vector(12, 0, 0), Vector(-35, 0, 0)),  # 3
    Part.LineSegment(Vector(-35, 105, 0), Vector(-35, 95, 0)),  # 4
    Part.LineSegment(Vector(-35, 95, 0), Vector(12, 95, 0)),  # 5
    Part.LineSegment(Vector(12, 95, 0), Vector(12, 105, 0)),  # 6
    Part.LineSegment(Vector(12, 105, 0), Vector(-35, 105, 0)),  # 7
], False)
sketch16.addConstraint([
    Sketcher.Constraint("Coincident", 0, 2, 1, 1),
    Sketcher.Constraint("Coincident", 1, 2, 2, 1),
    Sketcher.Constraint("Coincident", 2, 2, 3, 1),
    Sketcher.Constraint("Coincident", 3, 2, 0, 1),
    Sketcher.Constraint("Coincident", 4, 2, 5, 1),
    Sketcher.Constraint("Coincident", 5, 2, 6, 1),
    Sketcher.Constraint("Coincident", 6, 2, 7, 1),
    Sketcher.Constraint("Coincident", 7, 2, 4, 1),
    Sketcher.Constraint("Vertical", 0),
    Sketcher.Constraint("Horizontal", 1),
    Sketcher.Constraint("Vertical", 2),
    Sketcher.Constraint("Horizontal", 3),
    Sketcher.Constraint("Vertical", 4),
    Sketcher.Constraint("Horizontal", 5),
    Sketcher.Constraint("Vertical", 6),
    Sketcher.Constraint("Horizontal", 7),
    Sketcher.Constraint("PointOnObject", 2, 2, -1),
    Sketcher.Constraint("Vertical", 3, 2, 4, 2),
    Sketcher.Constraint("Vertical", 2, 2, 5, 2),
    Sketcher.Constraint("Equal", 2, 4),
    Sketcher.Constraint("DistanceX", 1, 1, 1, 2, Q("47 mm")),
    Sketcher.Constraint("DistanceY", 0, 2, 0, 1, Q("10 mm")),
    Sketcher.Constraint("DistanceX", 0, 2, -1, 1, Q("35 mm")),
    Sketcher.Constraint("DistanceY", -1, 1, 4, 2, Q("95 mm")),
])
sketch16.setExpression("Constraints[20]", "Params.sketch16_width")
sketch16.setExpression("Constraints[21]", "Params.sketch16_height")
pad3 = body.newObject("PartDesign::Pad", "Pad002")
pad3.Profile = sketch16
pad3.setExpression("Length", "Params.pad3_length")
pad3.Reversed = True

# Sketch on XY plane
sketch17 = body.newObject("Sketcher::SketchObject", "Sketch016")
sketch17.AttachmentSupport = (doc.getObject("XY_Plane"), [""])
sketch17.MapMode = "FlatFace"
sketch17.AttachmentOffset = App.Placement(Vector(0, 0, 22), App.Rotation())
sketch17.addGeometry([
    Part.Circle(Vector(-25, -5, 0), Vector(0, 0, 1), 1.75),
    Part.Circle(Vector(-5, -5, 0), Vector(0, 0, 1), 1.75),
    Part.Circle(Vector(-5, 100, 0), Vector(0, 0, 1), 1.75),
    Part.Circle(Vector(-25, 100, 0), Vector(0, 0, 1), 1.75),
], False)
sketch17.addConstraint([
    Sketcher.Constraint("Equal", 0, 1),
    Sketcher.Constraint("Equal", 1, 2),
    Sketcher.Constraint("Equal", 2, 3),
    Sketcher.Constraint("Horizontal", 0, 3, 1, 3),
    Sketcher.Constraint("Horizontal", 2, 3, 3, 3),
    Sketcher.Constraint("Vertical", 1, 3, 2, 3),
    Sketcher.Constraint("Vertical", 0, 3, 3, 3),
    Sketcher.Constraint("Diameter", 0, Q("3.5 mm")),
    Sketcher.Constraint("DistanceX", 0, 3, -1, 1, Q("25 mm")),
    Sketcher.Constraint("DistanceY", 0, 3, -1, 1, Q("5 mm")),
    Sketcher.Constraint("DistanceX", 1, 3, -1, 1, Q("5 mm")),
    Sketcher.Constraint("DistanceY", -1, 1, 2, 3, Q("100 mm")),
])
sketch17.setExpression("Constraints[7]", "Params.sketch17_diameter")
pocket14 = body.newObject("PartDesign::Pocket", "Pocket013")
pocket14.Profile = sketch17
pocket14.Type = "ThroughAll"
pocket14.Reversed = True

# Sketch on XZ plane
sketch18 = body.newObject("Sketcher::SketchObject", "Sketch017")
sketch18.AttachmentSupport = (doc.getObject("XZ_Plane"), [""])
sketch18.MapMode = "FlatFace"
sketch18.AttachmentOffset = App.Placement(Vector(0, 0, -5), App.Rotation())
sketch18.addGeometry([
    Part.LineSegment(Vector(18, 0, 0), Vector(18, 27.7, 0)),
    Part.LineSegment(Vector(18, 27.7, 0), Vector(60, 27.7, 0)),
    Part.LineSegment(Vector(60, 27.7, 0), Vector(60, 0, 0)),
    Part.LineSegment(Vector(60, 0, 0), Vector(18, 0, 0)),
], False)
sketch18.addConstraint([
    Sketcher.Constraint("Coincident", 0, 2, 1, 1),
    Sketcher.Constraint("Coincident", 1, 2, 2, 1),
    Sketcher.Constraint("Coincident", 2, 2, 3, 1),
    Sketcher.Constraint("Coincident", 3, 2, 0, 1),
    Sketcher.Constraint("Vertical", 0),
    Sketcher.Constraint("Horizontal", 1),
    Sketcher.Constraint("Vertical", 2),
    Sketcher.Constraint("Horizontal", 3),
    Sketcher.Constraint("PointOnObject", 2, 2, -1),
    Sketcher.Constraint("DistanceX", 1, 1, 1, 2, Q("42 mm")),
    Sketcher.Constraint("DistanceY", 0, 1, 0, 2, Q("27.7 mm")),
    Sketcher.Constraint("DistanceX", -1, 1, 0, 2, Q("18 mm")),
])
sketch18.setExpression("Constraints[9]", "Params.sketch18_width")
sketch18.setExpression("Constraints[10]", "Params.sketch18_height")
pocket15 = body.newObject("PartDesign::Pocket", "Pocket014")
pocket15.Profile = sketch18
pocket15.Type = "ThroughAll"
pocket15.Reversed = True

# Sketch on XY plane
sketch19 = body.newObject("Sketcher::SketchObject", "Sketch018")
sketch19.AttachmentSupport = (doc.getObject("XY_Plane"), [""])
sketch19.MapMode = "FlatFace"
sketch19.addGeometry([
    Part.LineSegment(Vector(18, 0, 0), Vector(18, -17, 0)),  # 0
    Part.LineSegment(Vector(18, -17, 0), Vector(60, -17, 0)),  # 1
    Part.LineSegment(Vector(60, -17, 0), Vector(60, -23, 0)),  # 2
    Part.LineSegment(Vector(60, -23, 0), Vector(12, -23, 0)),  # 3
    Part.LineSegment(Vector(12, -23, 0), Vector(12, 0, 0)),  # 4
    Part.LineSegment(Vector(12, 0, 0), Vector(18, 0, 0)),  # 5
], False)
sketch19.addConstraint([
    Sketcher.Constraint("Coincident", 0, 2, 1, 1),
    Sketcher.Constraint("Coincident", 1, 2, 2, 1),
    Sketcher.Constraint("Coincident", 2, 2, 3, 1),
    Sketcher.Constraint("Coincident", 3, 2, 4, 1),
    Sketcher.Constraint("Coincident", 4, 2, 5, 1),
    Sketcher.Constraint("Coincident", 5, 2, 0, 1),
    Sketcher.Constraint("Vertical", 0),
    Sketcher.Constraint("Horizontal", 1),
    Sketcher.Constraint("Vertical", 2),
    Sketcher.Constraint("Horizontal", 3),
    Sketcher.Constraint("Vertical", 4),
    Sketcher.Constraint("Horizontal", 5),
    Sketcher.Constraint("PointOnObject", 4, 2, -1),
    Sketcher.Constraint("Equal", 5, 2),
    Sketcher.Constraint("DistanceX", 1, 1, 1, 2, Q("42 mm")),
    Sketcher.Constraint("DistanceX", 3, 2, 3, 1, Q("48 mm")),
    Sketcher.Constraint("DistanceY", 0, 2, 0, 1, Q("17 mm")),
    Sketcher.Constraint("DistanceX", -1, 1, 0, 2, Q("18 mm")),
])
sketch19.setExpression("Constraints[14]", "Params.sketch19_width")
sketch19.setExpression("Constraints[15]", "Params.sketch19_width2")
sketch19.setExpression("Constraints[16]", "Params.sketch19_height")
pad4 = body.newObject("PartDesign::Pad", "Pad003")
pad4.Profile = sketch19
pad4.setExpression("Length", "Params.pad4_length")

# Sketch on XY plane
sketch20 = body.newObject("Sketcher::SketchObject", "Sketch019")
sketch20.AttachmentSupport = (doc.getObject("XY_Plane"), [""])
sketch20.MapMode = "FlatFace"
sketch20.AttachmentOffset = App.Placement(Vector(0, 0, 32), App.Rotation())
sketch20.addGeometry([
    Part.LineSegment(Vector(12, 0, 0), Vector(12, -23, 0)),
    Part.LineSegment(Vector(12, -23, 0), Vector(60, -23, 0)),
    Part.LineSegment(Vector(60, -23, 0), Vector(60, 0, 0)),
    Part.LineSegment(Vector(60, 0, 0), Vector(12, 0, 0)),
], False)
sketch20.addConstraint([
    Sketcher.Constraint("Coincident", 0, 2, 1, 1),
    Sketcher.Constraint("Coincident", 1, 2, 2, 1),
    Sketcher.Constraint("Coincident", 2, 2, 3, 1),
    Sketcher.Constraint("Coincident", 3, 2, 0, 1),
    Sketcher.Constraint("Vertical", 0),
    Sketcher.Constraint("Horizontal", 1),
    Sketcher.Constraint("Vertical", 2),
    Sketcher.Constraint("Horizontal", 3),
    Sketcher.Constraint("PointOnObject", 2, 2, -1),
    Sketcher.Constraint("DistanceX", 1, 1, 1, 2, Q("48 mm")),
    Sketcher.Constraint("DistanceY", 0, 2, 0, 1, Q("23 mm")),
    Sketcher.Constraint("DistanceX", -1, 1, 0, 2, Q("12 mm")),
])
sketch20.setExpression("Constraints[9]", "Params.sketch20_width")
sketch20.setExpression("Constraints[10]", "Params.sketch20_height")
pad5 = body.newObject("PartDesign::Pad", "Pad004")
pad5.Profile = sketch20
pad5.setExpression("Length", "Params.pad5_length")
pad5.Reversed = True
doc.recompute()

fillet3 = body.newObject("PartDesign::Fillet", "Fillet002")
fillet3.Base = (pad5, edges_at(pad5, [
    (-35, 105, 27),
    (12, 105, 27),
    (-35, -10, 27),
    (12, -10, 27),
]))
fillet3.setExpression("Radius", "Params.fillet3_radius")
doc.recompute()

fillet4 = body.newObject("PartDesign::Fillet", "Fillet003")
fillet4.Base = (fillet3, edges_at(fillet3, [(12, 95, 11)]))
fillet4.setExpression("Radius", "Params.fillet4_radius")

# Sketch on XY plane
sketch21 = body.newObject("Sketcher::SketchObject", "Sketch020")
sketch21.AttachmentSupport = (doc.getObject("XY_Plane"), [""])
sketch21.MapMode = "FlatFace"
sketch21.AttachmentOffset = App.Placement(Vector(0, 0, 22), App.Rotation())
sketch21.addGeometry([
    Part.LineSegment(Vector(3, 105, 0), Vector(7, 105, 0)),  # 0
    Part.ArcOfCircle(Part.Circle(Vector(7, 110, 0), Vector(0, 0, 1), 5), math.radians(-90), math.radians(0)),  # 1
    Part.LineSegment(Vector(12, 110, 0), Vector(12, 100, 0)),  # 2
    Part.ArcOfCircle(Part.Circle(Vector(7, 100, 0), Vector(0, 0, 1), 5), math.radians(-90), math.radians(0)),  # 3
    Part.LineSegment(Vector(7, 95, 0), Vector(3, 95, 0)),  # 4
    Part.LineSegment(Vector(3, 95, 0), Vector(3, 105, 0)),  # 5
    Part.LineSegment(Vector(7, -10, 0), Vector(3, -10, 0)),  # 6
    Part.LineSegment(Vector(3, -10, 0), Vector(3, 0, 0)),  # 7
    Part.LineSegment(Vector(3, 0, 0), Vector(12, 0, 0)),  # 8
    Part.LineSegment(Vector(12, 0, 0), Vector(12, -15, 0)),  # 9
    Part.ArcOfCircle(Part.Circle(Vector(7, -15, 0), Vector(0, 0, 1), 5), math.radians(0), math.radians(90)),  # 10
], False)
sketch21.addConstraint([
    Sketcher.Constraint("Tangent", 0, 2, 1, 1),
    Sketcher.Constraint("Tangent", 1, 2, 2, 1),
    Sketcher.Constraint("Tangent", 2, 2, 3, 2),
    Sketcher.Constraint("Tangent", 3, 1, 4, 1),
    Sketcher.Constraint("Coincident", 4, 2, 5, 1),
    Sketcher.Constraint("Coincident", 5, 2, 0, 1),
    Sketcher.Constraint("Coincident", 6, 2, 7, 1),
    Sketcher.Constraint("Coincident", 7, 2, 8, 1),
    Sketcher.Constraint("Coincident", 8, 2, 9, 1),
    Sketcher.Constraint("Tangent", 9, 2, 10, 1),
    Sketcher.Constraint("Tangent", 10, 2, 6, 1),
    Sketcher.Constraint("Horizontal", 0),
    Sketcher.Constraint("Vertical", 2),
    Sketcher.Constraint("Horizontal", 4),
    Sketcher.Constraint("Vertical", 5),
    Sketcher.Constraint("Horizontal", 6),
    Sketcher.Constraint("Vertical", 7),
    Sketcher.Constraint("Horizontal", 8),
    Sketcher.Constraint("Vertical", 9),
    Sketcher.Constraint("Equal", 1, 3),
    Sketcher.Constraint("Equal", 3, 10),
    Sketcher.Constraint("PointOnObject", 7, 2, -1),
    Sketcher.Constraint("Vertical", 3, 3, 10, 3),
    Sketcher.Constraint("Vertical", 5, 2, 6, 2),
    Sketcher.Constraint("Equal", 5, 7),
    Sketcher.Constraint("Radius", 1, Q("5 mm")),
    Sketcher.Constraint("DistanceX", 0, 1, 0, 2, Q("4 mm")),
    Sketcher.Constraint("DistanceY", 2, 2, 2, 1, Q("10 mm")),
    Sketcher.Constraint("DistanceX", -1, 1, 1, 3, Q("7 mm")),
    Sketcher.Constraint("DistanceY", -1, 1, 1, 3, Q("110 mm")),
])
sketch21.setExpression("Constraints[25]", "Params.sketch21_radius")
sketch21.setExpression("Constraints[26]", "Params.sketch21_width")
sketch21.setExpression("Constraints[27]", "Params.sketch21_height")
pocket16 = body.newObject("PartDesign::Pocket", "Pocket015")
pocket16.Profile = sketch21
pocket16.setExpression("Length", "Params.pocket16_length")
pocket16.Reversed = True

# Sketch on YZ plane
sketch22 = body.newObject("Sketcher::SketchObject", "Sketch021")
sketch22.AttachmentSupport = (doc.getObject("YZ_Plane"), [""])
sketch22.MapMode = "FlatFace"
sketch22.AttachmentOffset = App.Placement(Vector(0, 0, 12), App.Rotation())
sketch22.addGeometry([
    Part.Circle(Vector(113.3, 23.7, 0), Vector(0, 0, 1), 1.55),
    Part.Circle(Vector(-12.3, 23.7, 0), Vector(0, 0, 1), 1.55),
], False)
sketch22.addConstraint([
    Sketcher.Constraint("Equal", 0, 1),
    Sketcher.Constraint("Horizontal", 0, 3, 1, 3),
    Sketcher.Constraint("Diameter", 0, Q("3.1 mm")),
    Sketcher.Constraint("DistanceX", -1, 1, 0, 3, Q("113.3 mm")),
    Sketcher.Constraint("DistanceY", -1, 1, 0, 3, Q("23.7 mm")),
    Sketcher.Constraint("DistanceX", 1, 3, -1, 1, Q("12.3 mm")),
])
sketch22.setExpression("Constraints[2]", "Params.sketch22_diameter")
pocket17 = body.newObject("PartDesign::Pocket", "Pocket016")
pocket17.Profile = sketch22
pocket17.Type = "ThroughAll"
pocket17.Reversed = True
doc.recompute()

fillet5 = body.newObject("PartDesign::Fillet", "Fillet004")
fillet5.Base = (pocket17, edges_at(pocket17, [(12, 0, 16)]))
fillet5.setExpression("Radius", "Params.fillet5_radius")
doc.recompute()

fillet6 = body.newObject("PartDesign::Fillet", "Fillet005")
fillet6.Base = (fillet5, edges_at(fillet5, [(3, -10, 27)]))
fillet6.setExpression("Radius", "Params.fillet6_radius")
doc.recompute()

fillet7 = body.newObject("PartDesign::Fillet", "Fillet006")
fillet7.Base = (fillet6, edges_at(fillet6, [(3, 105, 27)]))
fillet7.setExpression("Radius", "Params.fillet7_radius")

doc.recompute()
